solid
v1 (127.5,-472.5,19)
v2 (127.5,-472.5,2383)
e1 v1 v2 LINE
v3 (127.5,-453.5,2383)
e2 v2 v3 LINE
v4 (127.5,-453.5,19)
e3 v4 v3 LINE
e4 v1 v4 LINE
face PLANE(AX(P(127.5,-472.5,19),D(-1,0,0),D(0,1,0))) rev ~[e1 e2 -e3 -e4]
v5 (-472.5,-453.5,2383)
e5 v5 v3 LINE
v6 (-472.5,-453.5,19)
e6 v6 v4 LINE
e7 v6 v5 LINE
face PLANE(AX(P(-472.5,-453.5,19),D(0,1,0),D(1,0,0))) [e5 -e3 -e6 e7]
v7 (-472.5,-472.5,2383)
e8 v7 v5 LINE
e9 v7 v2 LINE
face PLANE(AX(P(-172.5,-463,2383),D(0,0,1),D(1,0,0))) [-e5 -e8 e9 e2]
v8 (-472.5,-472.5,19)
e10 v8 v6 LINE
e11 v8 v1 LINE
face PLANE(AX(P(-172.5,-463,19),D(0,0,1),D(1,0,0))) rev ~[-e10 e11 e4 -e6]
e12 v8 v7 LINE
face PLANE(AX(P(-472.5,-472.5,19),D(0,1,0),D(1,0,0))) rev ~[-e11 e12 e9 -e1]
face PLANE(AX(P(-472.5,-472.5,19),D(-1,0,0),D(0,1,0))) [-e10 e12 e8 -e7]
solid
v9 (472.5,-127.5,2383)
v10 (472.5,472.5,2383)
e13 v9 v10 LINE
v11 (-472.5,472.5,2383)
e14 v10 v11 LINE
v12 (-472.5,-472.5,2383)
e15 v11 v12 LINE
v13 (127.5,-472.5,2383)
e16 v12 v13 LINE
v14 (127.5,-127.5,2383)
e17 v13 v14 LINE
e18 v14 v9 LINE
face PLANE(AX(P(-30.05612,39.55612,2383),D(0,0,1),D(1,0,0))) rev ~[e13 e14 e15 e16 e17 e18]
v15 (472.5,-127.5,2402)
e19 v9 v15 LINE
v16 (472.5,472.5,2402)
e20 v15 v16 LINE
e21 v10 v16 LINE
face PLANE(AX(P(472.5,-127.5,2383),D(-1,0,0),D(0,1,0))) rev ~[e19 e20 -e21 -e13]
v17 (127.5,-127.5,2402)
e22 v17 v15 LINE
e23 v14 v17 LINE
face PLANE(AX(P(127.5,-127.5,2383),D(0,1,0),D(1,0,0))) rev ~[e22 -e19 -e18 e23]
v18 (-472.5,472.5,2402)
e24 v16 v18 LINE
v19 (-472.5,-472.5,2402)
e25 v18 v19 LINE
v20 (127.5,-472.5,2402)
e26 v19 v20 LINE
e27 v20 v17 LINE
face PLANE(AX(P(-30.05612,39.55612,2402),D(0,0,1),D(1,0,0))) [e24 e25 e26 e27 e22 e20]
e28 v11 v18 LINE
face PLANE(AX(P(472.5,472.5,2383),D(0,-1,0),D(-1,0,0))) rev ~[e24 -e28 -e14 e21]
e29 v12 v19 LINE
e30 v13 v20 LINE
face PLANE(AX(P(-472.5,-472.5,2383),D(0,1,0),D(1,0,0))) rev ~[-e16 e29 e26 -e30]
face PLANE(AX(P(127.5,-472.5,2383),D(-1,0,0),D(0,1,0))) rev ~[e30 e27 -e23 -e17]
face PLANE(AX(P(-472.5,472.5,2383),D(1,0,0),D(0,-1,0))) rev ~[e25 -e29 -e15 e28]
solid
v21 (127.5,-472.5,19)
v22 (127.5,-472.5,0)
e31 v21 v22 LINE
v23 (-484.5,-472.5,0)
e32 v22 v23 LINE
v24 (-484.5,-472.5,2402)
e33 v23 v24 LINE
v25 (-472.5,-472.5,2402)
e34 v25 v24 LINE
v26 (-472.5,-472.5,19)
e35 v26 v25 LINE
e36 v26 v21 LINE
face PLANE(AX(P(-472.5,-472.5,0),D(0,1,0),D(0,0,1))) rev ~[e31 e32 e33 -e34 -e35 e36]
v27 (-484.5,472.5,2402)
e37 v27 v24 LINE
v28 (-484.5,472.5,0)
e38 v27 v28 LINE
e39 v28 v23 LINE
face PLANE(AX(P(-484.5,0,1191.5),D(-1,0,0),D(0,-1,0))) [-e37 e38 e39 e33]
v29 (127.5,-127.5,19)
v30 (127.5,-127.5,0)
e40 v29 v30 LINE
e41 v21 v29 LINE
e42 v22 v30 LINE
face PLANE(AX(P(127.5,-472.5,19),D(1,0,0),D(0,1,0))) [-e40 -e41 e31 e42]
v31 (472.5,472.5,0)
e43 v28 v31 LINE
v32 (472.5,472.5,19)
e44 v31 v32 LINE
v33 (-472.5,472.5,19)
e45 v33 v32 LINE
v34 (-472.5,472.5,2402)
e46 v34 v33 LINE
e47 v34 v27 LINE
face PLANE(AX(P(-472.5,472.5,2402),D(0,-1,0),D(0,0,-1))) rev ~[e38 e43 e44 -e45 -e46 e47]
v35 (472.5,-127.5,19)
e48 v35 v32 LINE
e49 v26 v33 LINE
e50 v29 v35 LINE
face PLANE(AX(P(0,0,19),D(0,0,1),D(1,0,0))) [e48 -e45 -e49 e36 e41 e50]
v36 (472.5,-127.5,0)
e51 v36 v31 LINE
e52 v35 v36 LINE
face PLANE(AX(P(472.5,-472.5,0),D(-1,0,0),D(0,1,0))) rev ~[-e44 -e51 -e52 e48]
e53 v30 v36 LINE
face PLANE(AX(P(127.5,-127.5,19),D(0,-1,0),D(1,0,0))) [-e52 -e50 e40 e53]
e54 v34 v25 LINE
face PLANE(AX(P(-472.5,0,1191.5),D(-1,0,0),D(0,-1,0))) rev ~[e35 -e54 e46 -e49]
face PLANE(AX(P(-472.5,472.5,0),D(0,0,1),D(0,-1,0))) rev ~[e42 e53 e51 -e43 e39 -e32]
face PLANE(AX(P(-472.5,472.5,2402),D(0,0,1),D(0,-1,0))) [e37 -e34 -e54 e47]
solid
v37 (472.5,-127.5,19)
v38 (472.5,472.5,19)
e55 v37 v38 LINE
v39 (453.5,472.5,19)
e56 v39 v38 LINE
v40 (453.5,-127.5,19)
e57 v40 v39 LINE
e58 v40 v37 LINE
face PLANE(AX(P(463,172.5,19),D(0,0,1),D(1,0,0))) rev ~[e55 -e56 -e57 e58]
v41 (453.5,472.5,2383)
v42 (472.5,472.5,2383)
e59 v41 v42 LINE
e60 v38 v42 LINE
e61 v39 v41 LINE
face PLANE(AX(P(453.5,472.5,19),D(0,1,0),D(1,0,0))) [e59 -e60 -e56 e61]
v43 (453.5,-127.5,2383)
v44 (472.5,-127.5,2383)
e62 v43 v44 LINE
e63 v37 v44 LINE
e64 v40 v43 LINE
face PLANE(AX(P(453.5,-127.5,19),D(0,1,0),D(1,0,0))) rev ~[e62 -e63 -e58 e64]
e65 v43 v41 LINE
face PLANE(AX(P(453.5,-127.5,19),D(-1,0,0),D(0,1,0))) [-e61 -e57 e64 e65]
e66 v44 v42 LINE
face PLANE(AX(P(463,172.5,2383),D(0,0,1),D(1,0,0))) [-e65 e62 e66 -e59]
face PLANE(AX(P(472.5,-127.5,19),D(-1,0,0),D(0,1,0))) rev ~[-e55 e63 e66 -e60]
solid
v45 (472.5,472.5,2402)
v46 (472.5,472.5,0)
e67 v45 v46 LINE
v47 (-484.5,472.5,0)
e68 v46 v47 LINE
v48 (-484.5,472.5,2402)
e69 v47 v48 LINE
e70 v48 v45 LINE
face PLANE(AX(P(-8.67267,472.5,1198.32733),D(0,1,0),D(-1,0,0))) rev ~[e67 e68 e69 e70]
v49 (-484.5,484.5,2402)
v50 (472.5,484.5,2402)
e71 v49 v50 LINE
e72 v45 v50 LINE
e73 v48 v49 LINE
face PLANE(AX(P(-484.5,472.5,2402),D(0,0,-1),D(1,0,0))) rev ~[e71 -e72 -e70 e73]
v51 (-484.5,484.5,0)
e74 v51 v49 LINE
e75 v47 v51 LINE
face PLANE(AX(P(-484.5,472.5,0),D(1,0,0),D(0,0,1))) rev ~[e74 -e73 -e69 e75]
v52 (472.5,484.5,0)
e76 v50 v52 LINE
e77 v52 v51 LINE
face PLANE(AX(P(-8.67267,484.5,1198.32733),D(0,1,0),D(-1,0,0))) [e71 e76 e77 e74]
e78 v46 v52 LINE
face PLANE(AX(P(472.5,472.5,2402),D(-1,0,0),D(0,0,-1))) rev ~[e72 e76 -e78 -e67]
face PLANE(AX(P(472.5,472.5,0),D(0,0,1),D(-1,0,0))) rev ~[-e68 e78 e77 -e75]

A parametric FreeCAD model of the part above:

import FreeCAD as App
import Part
import Sketcher
from FreeCAD import Vector
Q = App.Units.Quantity


def add_polygon(sketch, points):
    """Adds a closed chain of lines whose ends are joined by coincident constraints."""
    first, n = sketch.GeometryCount, len(points)
    for a, b in zip(points, points[1:] + points[:1]):
        sketch.addGeometry(Part.LineSegment(App.Vector(*a, 0), App.Vector(*b, 0)), False)
    for i in range(n):
        sketch.addConstraint(Sketcher.Constraint("Coincident", first + i, 2, first + (i + 1) % n, 1))

doc = App.newDocument("Part")
body = doc.addObject("PartDesign::Body", "Body")

sketch1 = body.newObject("Sketcher::SketchObject", "Sketch")
sketch1.AttachmentSupport = (doc.getObject("XY_Plane"), [""])
sketch1.MapMode = "FlatFace"
add_polygon(sketch1, [(-472, 472), (-472, -472), (472, -472), (472, 472)])
sketch1.addConstraint([
    Sketcher.Constraint("Vertical", 0),
    Sketcher.Constraint("Horizontal", 1),
    Sketcher.Constraint("Vertical", 2),
    Sketcher.Constraint("Horizontal", 3),
    Sketcher.Constraint("Symmetric", 0, 2, 2, 2, -1, 1),
    Sketcher.Constraint("Equal", 3, 0),
    Sketcher.Constraint("DistanceX", 1, 1, 1, 2, Q("945 mm")),
])
pad1 = body.newObject("PartDesign::Pad", "Pad")
pad1.Profile = sketch1
pad1.Length = 19

sketch2 = body.newObject("Sketcher::SketchObject", "Sketch001")
sketch2.AttachmentSupport = (doc.getObject("XY_Plane"), [""])
sketch2.MapMode = "FlatFace"
sketch2.AttachmentOffset = App.Placement(Vector(0, 0, 19), App.Rotation())
add_polygon(sketch2, [(128, -128), (128, -472), (472, -472), (472, -128)])
sketch2.addConstraint([
    Sketcher.Constraint("Vertical", 0),
    Sketcher.Constraint("Horizontal", 1),
    Sketcher.Constraint("Vertical", 2),
    Sketcher.Constraint("Horizontal", 3),
    Sketcher.Constraint("Equal", 3, 0),
    Sketcher.Constraint("DistanceX", 1, 1, 1, 2, Q("345 mm")),
    Sketcher.Constraint("DistanceX", -1, 1, 0, 2, Q("127.5 mm")),
    Sketcher.Constraint("DistanceY", 0, 2, -1, 1, Q("472.5 mm")),
])
pocket1 = body.newObject("PartDesign::Pocket", "Pocket")
pocket1.Profile = sketch2
pocket1.Type = "ThroughAll"

sketch3 = body.newObject("Sketcher::SketchObject", "Sketch002")
sketch3.AttachmentSupport = (doc.getObject("YZ_Plane"), [""])
sketch3.MapMode = "FlatFace"
sketch3.AttachmentOffset = App.Placement(Vector(0, 0, -472.5), App.Rotation())
add_polygon(sketch3, [(472, 0), (-472, 0), (-472, 2402), (472, 2402)])
sketch3.addConstraint([
    Sketcher.Constraint("Horizontal", 0),
    Sketcher.Constraint("Vertical", 1),
    Sketcher.Constraint("Horizontal", 2),
    Sketcher.Constraint("Vertical", 3),
    Sketcher.Constraint("Symmetric", 0, 2, 3, 2, -1, 1),
    Sketcher.Constraint("DistanceX", 0, 2, 0, 1, Q("945 mm")),
    Sketcher.Constraint("DistanceY", 1, 1, 1, 2, Q("2402 mm")),
])
pad2 = body.newObject("PartDesign::Pad", "Pad001")
pad2.Profile = sketch3
pad2.Length = 12
pad2.Reversed = True
body2 = doc.addObject("PartDesign::Body", "Body001")

sketch4 = body2.newObject("Sketcher::SketchObject", "Sketch003")
sketch4.AttachmentSupport = (doc.getObject("XY_Plane001"), [""])
sketch4.MapMode = "FlatFace"
sketch4.AttachmentOffset = App.Placement(Vector(0, 0, 19), App.Rotation())
add_polygon(sketch4, [(-472, -454), (-472, -472), (128, -472), (128, -454)])
sketch4.addConstraint([
    Sketcher.Constraint("Vertical", 0),
    Sketcher.Constraint("Horizontal", 1),
    Sketcher.Constraint("Vertical", 2),
    Sketcher.Constraint("Horizontal", 3),
    Sketcher.Constraint("DistanceX", 1, 1, 1, 2, Q("600 mm")),
    Sketcher.Constraint("DistanceY", 0, 2, 0, 1, Q("19 mm")),
    Sketcher.Constraint("DistanceX", 0, 2, -1, 1, Q("472.5 mm")),
    Sketcher.Constraint("DistanceY", 0, 2, -1, 1, Q("472.5 mm")),
])
pad3 = body2.newObject("PartDesign::Pad", "Pad002")
pad3.Profile = sketch4
pad3.Length = 2364
body3 = doc.addObject("PartDesign::Body", "Body002")

sketch5 = body3.newObject("Sketcher::SketchObject", "Sketch004")
sketch5.AttachmentSupport = (doc.getObject("XY_Plane002"), [""])
sketch5.MapMode = "FlatFace"
sketch5.AttachmentOffset = App.Placement(Vector(0, 0, 19), App.Rotation())
add_polygon(sketch5, [(454, 472), (454, -128), (472, -128), (472, 472)])
sketch5.addConstraint([
    Sketcher.Constraint("Vertical", 0),
    Sketcher.Constraint("Horizontal", 1),
    Sketcher.Constraint("Vertical", 2),
    Sketcher.Constraint("Horizontal", 3),
    Sketcher.Constraint("DistanceX", 1, 1, 1, 2, Q("19 mm")),
    Sketcher.Constraint("DistanceY", 0, 2, 0, 1, Q("600 mm")),
    Sketcher.Constraint("DistanceX", -1, 1, 0, 2, Q("453.5 mm")),
    Sketcher.Constraint("DistanceY", 0, 2, -1, 1, Q("127.5 mm")),
])
pad4 = body3.newObject("PartDesign::Pad", "Pad003")
pad4.Profile = sketch5
pad4.Length = 2364
body4 = doc.addObject("PartDesign::Body", "Body003")

sketch6 = body4.newObject("Sketcher::SketchObject", "Sketch005")
sketch6.AttachmentSupport = (doc.getObject("XY_Plane003"), [""])
sketch6.MapMode = "FlatFace"
sketch6.AttachmentOffset = App.Placement(Vector(0, 0, 2383), App.Rotation())
add_polygon(sketch6, [(-472, 472), (-472, -472), (128, -472), (128, -128), (472, -128), (472, 472)])
sketch6.addConstraint([
    Sketcher.Constraint("Vertical", 0),
    Sketcher.Constraint("Horizontal", 1),
    Sketcher.Constraint("Vertical", 2),
    Sketcher.Constraint("Horizontal", 3),
    Sketcher.Constraint("Vertical", 4),
    Sketcher.Constraint("Horizontal", 5),
    Sketcher.Constraint("Symmetric", 0, 2, 4, 2, -1, 1),
    Sketcher.Constraint("Equal", 5, 0),
    Sketcher.Constraint("Equal", 3, 2),
    Sketcher.Constraint("DistanceX", 1, 1, 1, 2, Q("600 mm")),
    Sketcher.Constraint("DistanceX", 3, 1, 3, 2, Q("345 mm")),
])
pad5 = body4.newObject("PartDesign::Pad", "Pad004")
pad5.Profile = sketch6
pad5.Length = 19
body5 = doc.addObject("PartDesign::Body", "Body004")

sketch7 = body5.newObject("Sketcher::SketchObject", "Sketch006")
sketch7.AttachmentSupport = (doc.getObject("XZ_Plane004"), [""])
sketch7.MapMode = "FlatFace"
sketch7.AttachmentOffset = App.Placement(Vector(0, 0, -472.5), App.Rotation())
add_polygon(sketch7, [(-484, 2402), (472, 2402), (472, 0), (-484, 0)])
sketch7.addConstraint([
    Sketcher.Constraint("Horizontal", 0),
    Sketcher.Constraint("Vertical", 1),
    Sketcher.Constraint("Horizontal", 2),
    Sketcher.Constraint("Vertical", 3),
    Sketcher.Constraint("PointOnObject", 1, 2, -1),
    Sketcher.Constraint("DistanceX", 0, 1, 0, 2, Q("957 mm")),
    Sketcher.Constraint("DistanceY", 1, 2, 1, 1, Q("2402 mm")),
    Sketcher.Constraint("DistanceX", -1, 1, 0, 2, Q("472.5 mm")),
])
pad6 = body5.newObject("PartDesign::Pad", "Pad005")
pad6.Profile = sketch7
pad6.Length = 12
pad6.Reversed = True

doc.recompute()
